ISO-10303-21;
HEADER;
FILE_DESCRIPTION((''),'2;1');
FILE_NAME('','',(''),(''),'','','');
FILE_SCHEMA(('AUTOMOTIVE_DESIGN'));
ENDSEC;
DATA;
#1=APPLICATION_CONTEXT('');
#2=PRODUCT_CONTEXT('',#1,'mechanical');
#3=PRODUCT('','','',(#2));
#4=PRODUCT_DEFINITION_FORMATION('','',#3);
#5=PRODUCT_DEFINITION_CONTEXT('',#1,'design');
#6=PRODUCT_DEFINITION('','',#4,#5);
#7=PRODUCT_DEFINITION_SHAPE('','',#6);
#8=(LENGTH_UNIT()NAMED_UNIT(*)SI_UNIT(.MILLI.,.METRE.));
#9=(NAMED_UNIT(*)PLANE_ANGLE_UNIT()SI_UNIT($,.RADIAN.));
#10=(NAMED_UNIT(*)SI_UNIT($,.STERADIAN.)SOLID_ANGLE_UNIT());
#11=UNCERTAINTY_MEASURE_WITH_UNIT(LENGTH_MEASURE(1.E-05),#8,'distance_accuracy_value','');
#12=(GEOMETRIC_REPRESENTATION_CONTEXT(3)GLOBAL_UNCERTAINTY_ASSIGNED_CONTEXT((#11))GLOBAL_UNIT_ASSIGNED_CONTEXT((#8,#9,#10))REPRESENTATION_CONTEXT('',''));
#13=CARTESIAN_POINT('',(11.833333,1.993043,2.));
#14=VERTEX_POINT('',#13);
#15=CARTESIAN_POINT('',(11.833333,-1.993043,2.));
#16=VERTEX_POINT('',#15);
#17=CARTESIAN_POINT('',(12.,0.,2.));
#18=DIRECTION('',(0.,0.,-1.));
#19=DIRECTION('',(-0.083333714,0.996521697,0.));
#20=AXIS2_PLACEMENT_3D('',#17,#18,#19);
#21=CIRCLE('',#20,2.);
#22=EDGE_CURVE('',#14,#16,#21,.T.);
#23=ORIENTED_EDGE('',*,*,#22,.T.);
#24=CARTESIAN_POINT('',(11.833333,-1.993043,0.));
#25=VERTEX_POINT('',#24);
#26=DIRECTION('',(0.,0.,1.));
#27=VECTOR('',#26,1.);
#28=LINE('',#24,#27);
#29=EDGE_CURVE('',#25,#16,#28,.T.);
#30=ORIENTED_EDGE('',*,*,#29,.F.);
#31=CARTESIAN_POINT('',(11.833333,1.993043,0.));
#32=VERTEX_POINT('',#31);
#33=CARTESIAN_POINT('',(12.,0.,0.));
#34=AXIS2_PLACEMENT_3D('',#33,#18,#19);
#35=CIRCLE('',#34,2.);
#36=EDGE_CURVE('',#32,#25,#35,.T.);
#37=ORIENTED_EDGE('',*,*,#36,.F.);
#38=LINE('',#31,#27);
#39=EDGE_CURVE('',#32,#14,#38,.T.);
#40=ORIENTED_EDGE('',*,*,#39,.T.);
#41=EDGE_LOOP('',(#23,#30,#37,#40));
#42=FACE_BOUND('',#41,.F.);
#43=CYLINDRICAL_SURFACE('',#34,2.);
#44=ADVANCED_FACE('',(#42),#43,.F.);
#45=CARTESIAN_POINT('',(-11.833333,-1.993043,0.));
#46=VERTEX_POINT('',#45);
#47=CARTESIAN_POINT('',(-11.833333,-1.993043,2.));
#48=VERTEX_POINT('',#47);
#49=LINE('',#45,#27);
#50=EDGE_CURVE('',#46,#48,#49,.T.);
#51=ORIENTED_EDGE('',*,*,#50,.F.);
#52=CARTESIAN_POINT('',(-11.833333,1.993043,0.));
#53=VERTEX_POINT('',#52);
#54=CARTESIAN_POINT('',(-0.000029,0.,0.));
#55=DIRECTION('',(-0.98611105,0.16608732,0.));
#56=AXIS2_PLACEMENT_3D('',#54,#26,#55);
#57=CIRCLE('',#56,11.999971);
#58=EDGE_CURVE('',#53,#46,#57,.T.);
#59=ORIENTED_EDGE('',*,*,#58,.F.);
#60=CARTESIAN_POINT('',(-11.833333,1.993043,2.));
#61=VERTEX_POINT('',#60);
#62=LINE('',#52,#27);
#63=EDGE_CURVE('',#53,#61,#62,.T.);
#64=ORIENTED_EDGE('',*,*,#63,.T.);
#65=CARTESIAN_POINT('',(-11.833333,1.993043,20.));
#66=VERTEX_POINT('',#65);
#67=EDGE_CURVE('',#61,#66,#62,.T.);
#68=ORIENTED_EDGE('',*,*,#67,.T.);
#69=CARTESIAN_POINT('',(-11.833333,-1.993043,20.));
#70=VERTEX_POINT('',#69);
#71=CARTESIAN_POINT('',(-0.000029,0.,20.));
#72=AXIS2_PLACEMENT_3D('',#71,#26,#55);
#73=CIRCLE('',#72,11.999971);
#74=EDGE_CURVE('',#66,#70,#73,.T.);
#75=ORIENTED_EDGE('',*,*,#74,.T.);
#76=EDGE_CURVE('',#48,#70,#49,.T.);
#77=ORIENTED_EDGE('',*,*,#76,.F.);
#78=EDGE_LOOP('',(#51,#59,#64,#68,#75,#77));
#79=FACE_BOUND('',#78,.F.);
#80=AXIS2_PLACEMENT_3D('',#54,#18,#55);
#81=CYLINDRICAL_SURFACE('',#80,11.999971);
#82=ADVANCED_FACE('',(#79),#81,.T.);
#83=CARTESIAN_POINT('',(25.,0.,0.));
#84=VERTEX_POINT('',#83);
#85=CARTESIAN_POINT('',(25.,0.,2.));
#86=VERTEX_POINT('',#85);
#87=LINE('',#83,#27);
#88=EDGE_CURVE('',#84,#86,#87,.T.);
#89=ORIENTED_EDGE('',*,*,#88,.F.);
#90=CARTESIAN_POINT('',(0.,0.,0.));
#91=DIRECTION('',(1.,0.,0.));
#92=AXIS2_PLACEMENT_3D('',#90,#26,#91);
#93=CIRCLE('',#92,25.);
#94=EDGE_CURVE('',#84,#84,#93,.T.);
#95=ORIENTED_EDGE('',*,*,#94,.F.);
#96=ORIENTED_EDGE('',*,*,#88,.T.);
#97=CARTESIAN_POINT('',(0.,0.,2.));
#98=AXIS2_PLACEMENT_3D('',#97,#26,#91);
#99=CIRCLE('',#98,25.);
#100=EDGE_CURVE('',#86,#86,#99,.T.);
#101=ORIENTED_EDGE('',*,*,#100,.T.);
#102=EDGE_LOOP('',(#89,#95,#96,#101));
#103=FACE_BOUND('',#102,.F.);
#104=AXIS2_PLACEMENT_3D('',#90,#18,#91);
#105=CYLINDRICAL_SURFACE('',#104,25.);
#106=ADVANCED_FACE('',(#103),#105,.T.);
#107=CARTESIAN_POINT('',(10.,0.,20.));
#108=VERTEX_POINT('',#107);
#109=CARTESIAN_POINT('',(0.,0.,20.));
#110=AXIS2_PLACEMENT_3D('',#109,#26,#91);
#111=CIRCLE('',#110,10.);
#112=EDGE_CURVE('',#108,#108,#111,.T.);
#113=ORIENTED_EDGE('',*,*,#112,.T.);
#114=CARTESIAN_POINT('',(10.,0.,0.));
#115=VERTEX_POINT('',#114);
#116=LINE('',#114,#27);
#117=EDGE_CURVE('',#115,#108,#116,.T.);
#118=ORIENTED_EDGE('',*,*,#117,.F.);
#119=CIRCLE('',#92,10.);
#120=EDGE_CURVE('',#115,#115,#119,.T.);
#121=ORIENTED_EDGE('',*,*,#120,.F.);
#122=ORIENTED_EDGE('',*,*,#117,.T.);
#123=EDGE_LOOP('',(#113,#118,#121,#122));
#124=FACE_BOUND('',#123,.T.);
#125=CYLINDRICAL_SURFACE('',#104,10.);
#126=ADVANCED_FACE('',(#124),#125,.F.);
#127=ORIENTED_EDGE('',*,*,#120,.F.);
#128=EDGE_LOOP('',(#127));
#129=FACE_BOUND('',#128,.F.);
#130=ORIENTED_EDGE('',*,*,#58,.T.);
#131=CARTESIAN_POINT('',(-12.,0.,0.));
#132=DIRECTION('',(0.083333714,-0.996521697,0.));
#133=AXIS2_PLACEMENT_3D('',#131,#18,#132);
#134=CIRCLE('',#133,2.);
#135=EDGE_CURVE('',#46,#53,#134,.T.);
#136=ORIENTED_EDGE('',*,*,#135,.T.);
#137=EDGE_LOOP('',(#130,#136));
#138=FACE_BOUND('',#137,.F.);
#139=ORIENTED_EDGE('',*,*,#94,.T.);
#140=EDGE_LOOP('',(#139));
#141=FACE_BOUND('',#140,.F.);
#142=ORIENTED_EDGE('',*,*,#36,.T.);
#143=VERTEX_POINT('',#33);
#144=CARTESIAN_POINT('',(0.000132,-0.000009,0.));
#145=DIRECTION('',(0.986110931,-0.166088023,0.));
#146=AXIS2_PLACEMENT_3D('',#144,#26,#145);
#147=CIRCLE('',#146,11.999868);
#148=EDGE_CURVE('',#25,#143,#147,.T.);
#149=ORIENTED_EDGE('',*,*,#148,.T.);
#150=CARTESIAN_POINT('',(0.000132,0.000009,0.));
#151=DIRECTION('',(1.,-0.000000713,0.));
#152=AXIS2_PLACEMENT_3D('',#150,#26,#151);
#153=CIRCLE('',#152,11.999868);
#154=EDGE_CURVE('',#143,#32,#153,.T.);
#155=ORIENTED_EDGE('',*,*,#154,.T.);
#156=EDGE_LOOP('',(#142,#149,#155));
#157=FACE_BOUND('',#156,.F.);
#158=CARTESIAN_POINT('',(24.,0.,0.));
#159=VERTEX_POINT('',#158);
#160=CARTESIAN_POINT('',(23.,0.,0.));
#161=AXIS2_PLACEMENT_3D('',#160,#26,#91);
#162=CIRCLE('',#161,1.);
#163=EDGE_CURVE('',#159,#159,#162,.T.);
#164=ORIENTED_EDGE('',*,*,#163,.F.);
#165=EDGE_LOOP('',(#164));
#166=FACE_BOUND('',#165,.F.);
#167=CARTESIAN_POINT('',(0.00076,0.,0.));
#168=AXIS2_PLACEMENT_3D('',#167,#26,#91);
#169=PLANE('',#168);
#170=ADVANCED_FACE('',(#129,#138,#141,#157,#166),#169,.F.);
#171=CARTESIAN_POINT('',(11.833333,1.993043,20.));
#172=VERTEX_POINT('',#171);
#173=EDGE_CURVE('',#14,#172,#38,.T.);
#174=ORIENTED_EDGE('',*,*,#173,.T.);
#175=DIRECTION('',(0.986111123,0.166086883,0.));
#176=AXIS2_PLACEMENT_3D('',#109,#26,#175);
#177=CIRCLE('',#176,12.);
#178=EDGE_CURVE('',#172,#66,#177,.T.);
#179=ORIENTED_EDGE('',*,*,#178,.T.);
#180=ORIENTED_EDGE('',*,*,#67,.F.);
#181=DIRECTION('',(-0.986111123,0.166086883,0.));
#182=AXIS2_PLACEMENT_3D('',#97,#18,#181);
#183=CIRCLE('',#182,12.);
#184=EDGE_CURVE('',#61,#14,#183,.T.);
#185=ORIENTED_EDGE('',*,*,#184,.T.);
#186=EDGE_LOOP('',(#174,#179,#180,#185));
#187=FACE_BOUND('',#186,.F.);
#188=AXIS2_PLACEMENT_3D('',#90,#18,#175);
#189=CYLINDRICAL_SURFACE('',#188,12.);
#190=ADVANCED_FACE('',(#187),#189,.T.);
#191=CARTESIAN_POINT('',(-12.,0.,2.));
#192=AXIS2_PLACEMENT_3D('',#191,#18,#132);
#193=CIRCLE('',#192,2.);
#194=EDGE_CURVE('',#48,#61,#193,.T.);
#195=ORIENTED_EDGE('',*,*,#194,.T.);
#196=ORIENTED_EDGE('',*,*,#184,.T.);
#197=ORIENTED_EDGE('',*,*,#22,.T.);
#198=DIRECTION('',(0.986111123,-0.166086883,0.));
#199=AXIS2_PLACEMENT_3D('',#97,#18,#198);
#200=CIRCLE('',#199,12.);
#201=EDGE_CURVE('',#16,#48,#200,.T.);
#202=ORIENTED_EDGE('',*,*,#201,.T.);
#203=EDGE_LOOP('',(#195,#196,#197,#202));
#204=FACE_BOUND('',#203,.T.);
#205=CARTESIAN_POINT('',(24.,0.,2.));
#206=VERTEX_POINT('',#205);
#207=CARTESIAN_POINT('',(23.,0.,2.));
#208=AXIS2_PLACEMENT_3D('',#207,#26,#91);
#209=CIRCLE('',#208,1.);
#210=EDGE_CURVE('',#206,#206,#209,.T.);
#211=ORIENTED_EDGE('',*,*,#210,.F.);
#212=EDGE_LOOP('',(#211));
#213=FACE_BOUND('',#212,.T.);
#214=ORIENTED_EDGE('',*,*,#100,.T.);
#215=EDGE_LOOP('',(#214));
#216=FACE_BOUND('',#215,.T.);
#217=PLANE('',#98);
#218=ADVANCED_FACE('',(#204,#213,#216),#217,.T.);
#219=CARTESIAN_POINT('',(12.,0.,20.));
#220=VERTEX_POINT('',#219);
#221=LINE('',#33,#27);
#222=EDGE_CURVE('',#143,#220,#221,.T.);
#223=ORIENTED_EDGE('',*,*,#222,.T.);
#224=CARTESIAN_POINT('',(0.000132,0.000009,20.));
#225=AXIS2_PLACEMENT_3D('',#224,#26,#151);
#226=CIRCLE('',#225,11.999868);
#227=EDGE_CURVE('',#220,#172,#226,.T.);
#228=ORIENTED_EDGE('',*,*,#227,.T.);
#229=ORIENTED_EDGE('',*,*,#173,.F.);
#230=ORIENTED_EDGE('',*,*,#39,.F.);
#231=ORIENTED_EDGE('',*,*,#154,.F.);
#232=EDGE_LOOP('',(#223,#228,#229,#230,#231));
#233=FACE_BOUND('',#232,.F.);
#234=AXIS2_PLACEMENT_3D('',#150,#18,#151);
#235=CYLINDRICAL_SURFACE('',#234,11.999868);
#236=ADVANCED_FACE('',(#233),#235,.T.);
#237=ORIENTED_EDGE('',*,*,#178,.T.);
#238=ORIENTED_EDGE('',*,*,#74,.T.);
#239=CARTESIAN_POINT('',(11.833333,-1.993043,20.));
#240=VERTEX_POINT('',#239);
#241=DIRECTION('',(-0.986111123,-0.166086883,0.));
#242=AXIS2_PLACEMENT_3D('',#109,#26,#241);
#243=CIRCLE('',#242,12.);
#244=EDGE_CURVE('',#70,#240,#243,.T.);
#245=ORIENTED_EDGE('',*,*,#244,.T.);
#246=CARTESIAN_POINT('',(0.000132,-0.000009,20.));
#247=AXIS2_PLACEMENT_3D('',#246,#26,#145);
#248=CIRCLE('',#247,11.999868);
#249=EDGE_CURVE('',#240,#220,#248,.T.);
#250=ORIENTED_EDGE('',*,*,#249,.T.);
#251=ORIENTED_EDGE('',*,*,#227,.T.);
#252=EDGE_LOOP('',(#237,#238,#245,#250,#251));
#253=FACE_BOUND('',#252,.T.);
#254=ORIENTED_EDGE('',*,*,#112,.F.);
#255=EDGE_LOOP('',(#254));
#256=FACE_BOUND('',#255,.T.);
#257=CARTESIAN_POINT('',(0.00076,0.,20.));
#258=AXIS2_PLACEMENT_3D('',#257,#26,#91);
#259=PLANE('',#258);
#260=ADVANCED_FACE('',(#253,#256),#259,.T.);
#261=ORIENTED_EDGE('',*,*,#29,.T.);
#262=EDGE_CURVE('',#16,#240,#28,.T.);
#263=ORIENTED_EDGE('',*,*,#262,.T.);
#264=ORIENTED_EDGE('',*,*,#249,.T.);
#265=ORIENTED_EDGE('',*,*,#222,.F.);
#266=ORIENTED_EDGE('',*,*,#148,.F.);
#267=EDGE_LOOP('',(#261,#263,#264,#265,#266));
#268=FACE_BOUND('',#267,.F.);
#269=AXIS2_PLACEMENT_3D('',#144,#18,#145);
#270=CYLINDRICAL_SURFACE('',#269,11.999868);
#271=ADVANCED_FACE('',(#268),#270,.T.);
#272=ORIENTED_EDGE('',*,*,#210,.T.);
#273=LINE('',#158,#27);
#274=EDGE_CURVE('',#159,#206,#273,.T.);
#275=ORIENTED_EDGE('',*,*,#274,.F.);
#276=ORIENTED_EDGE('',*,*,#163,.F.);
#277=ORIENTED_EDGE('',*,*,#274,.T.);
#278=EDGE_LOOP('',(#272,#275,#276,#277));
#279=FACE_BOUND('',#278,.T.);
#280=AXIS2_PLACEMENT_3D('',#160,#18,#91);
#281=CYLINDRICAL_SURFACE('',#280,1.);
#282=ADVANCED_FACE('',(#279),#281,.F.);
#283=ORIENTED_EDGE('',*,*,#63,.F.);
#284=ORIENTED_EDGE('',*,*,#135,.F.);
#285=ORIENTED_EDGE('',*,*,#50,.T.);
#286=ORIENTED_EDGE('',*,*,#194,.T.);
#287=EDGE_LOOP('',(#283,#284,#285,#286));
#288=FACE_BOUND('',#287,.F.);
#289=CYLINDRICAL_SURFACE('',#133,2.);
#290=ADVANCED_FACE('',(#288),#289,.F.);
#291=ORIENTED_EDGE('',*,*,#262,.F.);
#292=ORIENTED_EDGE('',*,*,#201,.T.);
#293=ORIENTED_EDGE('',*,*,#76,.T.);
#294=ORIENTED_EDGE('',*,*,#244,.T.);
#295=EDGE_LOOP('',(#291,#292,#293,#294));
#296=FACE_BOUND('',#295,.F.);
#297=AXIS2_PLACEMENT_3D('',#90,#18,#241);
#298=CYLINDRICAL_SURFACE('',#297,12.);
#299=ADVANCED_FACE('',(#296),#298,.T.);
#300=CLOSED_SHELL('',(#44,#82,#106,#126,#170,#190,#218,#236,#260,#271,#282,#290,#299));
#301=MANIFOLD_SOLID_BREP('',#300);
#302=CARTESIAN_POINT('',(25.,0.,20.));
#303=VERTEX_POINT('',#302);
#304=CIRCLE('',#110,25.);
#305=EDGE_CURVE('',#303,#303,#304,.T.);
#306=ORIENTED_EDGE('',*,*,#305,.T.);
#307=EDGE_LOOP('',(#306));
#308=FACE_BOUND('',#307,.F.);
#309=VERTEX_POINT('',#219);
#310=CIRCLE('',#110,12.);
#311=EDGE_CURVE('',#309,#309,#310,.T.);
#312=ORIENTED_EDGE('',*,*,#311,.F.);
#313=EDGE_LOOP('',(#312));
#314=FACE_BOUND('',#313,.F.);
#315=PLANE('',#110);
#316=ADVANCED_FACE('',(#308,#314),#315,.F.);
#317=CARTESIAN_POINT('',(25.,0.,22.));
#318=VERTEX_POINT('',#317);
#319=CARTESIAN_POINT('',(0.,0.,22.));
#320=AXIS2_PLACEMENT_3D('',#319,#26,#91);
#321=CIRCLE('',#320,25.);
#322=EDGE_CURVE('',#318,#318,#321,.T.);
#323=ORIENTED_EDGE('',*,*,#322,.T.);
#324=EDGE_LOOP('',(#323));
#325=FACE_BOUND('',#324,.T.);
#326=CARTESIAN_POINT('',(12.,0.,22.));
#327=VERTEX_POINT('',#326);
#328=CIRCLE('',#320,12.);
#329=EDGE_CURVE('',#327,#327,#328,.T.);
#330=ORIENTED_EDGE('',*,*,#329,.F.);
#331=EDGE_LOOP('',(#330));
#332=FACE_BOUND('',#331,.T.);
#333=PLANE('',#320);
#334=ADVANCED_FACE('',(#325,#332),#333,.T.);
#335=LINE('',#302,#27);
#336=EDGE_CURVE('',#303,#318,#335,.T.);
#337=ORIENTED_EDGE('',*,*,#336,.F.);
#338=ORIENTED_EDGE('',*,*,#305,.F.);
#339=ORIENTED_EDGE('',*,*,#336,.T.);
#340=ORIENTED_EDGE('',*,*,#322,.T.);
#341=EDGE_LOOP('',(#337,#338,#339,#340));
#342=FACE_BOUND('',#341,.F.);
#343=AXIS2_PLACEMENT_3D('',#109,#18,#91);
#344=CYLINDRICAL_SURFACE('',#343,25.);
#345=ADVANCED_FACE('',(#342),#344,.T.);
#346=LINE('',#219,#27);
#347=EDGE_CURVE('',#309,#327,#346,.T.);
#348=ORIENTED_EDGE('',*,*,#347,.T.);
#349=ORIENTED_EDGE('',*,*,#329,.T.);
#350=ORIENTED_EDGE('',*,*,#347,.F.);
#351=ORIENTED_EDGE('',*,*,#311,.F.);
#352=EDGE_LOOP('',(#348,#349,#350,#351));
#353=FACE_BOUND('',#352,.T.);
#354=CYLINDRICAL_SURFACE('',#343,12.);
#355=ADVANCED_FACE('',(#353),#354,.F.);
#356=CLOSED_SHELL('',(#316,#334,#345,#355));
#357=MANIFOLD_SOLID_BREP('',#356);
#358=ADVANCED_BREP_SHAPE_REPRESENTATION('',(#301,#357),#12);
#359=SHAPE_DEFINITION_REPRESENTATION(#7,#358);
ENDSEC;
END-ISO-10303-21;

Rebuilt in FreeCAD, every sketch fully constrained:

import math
import FreeCAD as App
import Part
import Sketcher
from FreeCAD import Vector

doc = App.newDocument("Part")
body = doc.addObject("PartDesign::Body", "Body")

sketch1 = body.newObject("Sketcher::SketchObject", "Sketch")
sketch1.AttachmentSupport = (doc.getObject("XY_Plane"), [""])
sketch1.MapMode = "FlatFace"
sketch1.addGeometry([
    Part.Circle(Vector(0, 0, 0), Vector(0, 0, 1), 25),
    Part.ArcOfCircle(Part.Circle(Vector(-12, 0, 0), Vector(0, 0, 1), 2), math.radians(85), math.radians(275)),
    Part.ArcOfCircle(Part.Circle(Vector(0, 0, 0), Vector(0, 0, 1), 12), math.radians(10), math.radians(170)),
    Part.ArcOfCircle(Part.Circle(Vector(12, 0, 0), Vector(0, 0, 1), 2), math.radians(-95), math.radians(95)),
    Part.ArcOfCircle(Part.Circle(Vector(0, 0, 0), Vector(0, 0, 1), 12), math.radians(-170), math.radians(-10)),
    Part.Circle(Vector(23, 0, 0), Vector(0, 0, 1), 1),
], False)
sketch1.addConstraint([
    Sketcher.Constraint("Coincident", 1, 1, 2, 2),
    Sketcher.Constraint("Coincident", 2, 1, 3, 2),
    Sketcher.Constraint("Coincident", 3, 1, 4, 2),
    Sketcher.Constraint("Coincident", 4, 1, 1, 2),
    Sketcher.Constraint("Coincident", 0, 3, -1, 1),
    Sketcher.Constraint("Coincident", 2, 3, -1, 1),
    Sketcher.Constraint("Coincident", 4, 3, -1, 1),
    Sketcher.Constraint("Equal", 1, 3),
    Sketcher.Constraint("Equal", 2, 4),
    Sketcher.Constraint("Symmetric", 1, 3, 3, 3, -1, 1),
    Sketcher.Constraint("PointOnObject", 1, 3, -1),
    Sketcher.Constraint("PointOnObject", 5, 3, -1),
    Sketcher.Constraint("Diameter", 0, 50.0),
    Sketcher.Constraint("Diameter", 5, 2.0),
    Sketcher.Constraint("Radius", 1, 2.0),
    Sketcher.Constraint("Radius", 2, 12.0),
    Sketcher.Constraint("DistanceX", 1, 3, -1, 1, 12.0),
    Sketcher.Constraint("DistanceX", -1, 1, 5, 3, 23.0),
])
pad1 = body.newObject("PartDesign::Pad", "Pad")
pad1.Profile = sketch1
pad1.Length = 2

sketch2 = body.newObject("Sketcher::SketchObject", "Sketch001")
sketch2.AttachmentSupport = (doc.getObject("XY_Plane"), [""])
sketch2.MapMode = "FlatFace"
sketch2.addGeometry([
    Part.ArcOfCircle(Part.Circle(Vector(0.000132, -0.000009, 0), Vector(0, 0, 1), 11.999868), math.radians(-9.560446), math.radians(0.000041)),
    Part.ArcOfCircle(Part.Circle(Vector(0.000132, 0.000009, 0), Vector(0, 0, 1), 11.999868), math.radians(-0.000041), math.radians(9.560446)),
    Part.ArcOfCircle(Part.Circle(Vector(0, 0, 0), Vector(0, 0, 1), 12), math.radians(9.56038), math.radians(170.43962)),
    Part.ArcOfCircle(Part.Circle(Vector(-0.000029, 0, 0), Vector(0, 0, 1), 11.999971), math.radians(170.439595), math.radians(189.560405)),
    Part.ArcOfCircle(Part.Circle(Vector(0, 0, 0), Vector(0, 0, 1), 12), math.radians(-170.43962), math.radians(-9.56038)),
    Part.Circle(Vector(0, 0, 0), Vector(0, 0, 1), 10),
], False)
sketch2.addConstraint([
    Sketcher.Constraint("Coincident", 0, 2, 1, 1),
    Sketcher.Constraint("Coincident", 1, 2, 2, 1),
    Sketcher.Constraint("Coincident", 2, 2, 3, 1),
    Sketcher.Constraint("Coincident", 3, 2, 4, 1),
    Sketcher.Constraint("Coincident", 4, 2, 0, 1),
    Sketcher.Constraint("Coincident", 2, 3, -1, 1),
    Sketcher.Constraint("Coincident", 4, 3, -1, 1),
    Sketcher.Constraint("Coincident", 5, 3, -1, 1),
    Sketcher.Constraint("PointOnObject", 3, 3, -1),
    Sketcher.Constraint("PointOnObject", 0, 2, -1),
    Sketcher.Constraint("Diameter", 5, 20.0),
    Sketcher.Constraint("Radius", 2, 12.0),
    Sketcher.Constraint("DistanceX", -1, 1, 0, 2, 12.0),
    Sketcher.Constraint("Radius", 0, 11.999868),
    Sketcher.Constraint("Radius", 1, 11.999868),
    Sketcher.Constraint("Radius", 3, 11.999971),
    Sketcher.Constraint("DistanceX", 1, 3, 1, 2, 11.833201),
    Sketcher.Constraint("DistanceX", 0, 3, 4, 2, 11.833201),
    Sketcher.Constraint("DistanceX", 2, 2, -1, 1, 11.833333),
    Sketcher.Constraint("DistanceX", 3, 2, -1, 1, 11.833333),
])
pad2 = body.newObject("PartDesign::Pad", "Pad001")
pad2.Profile = sketch2
pad2.Length = 20
body2 = doc.addObject("PartDesign::Body", "Body001")

sketch3 = body2.newObject("Sketcher::SketchObject", "Sketch002")
sketch3.AttachmentSupport = (doc.getObject("XY_Plane001"), [""])
sketch3.MapMode = "FlatFace"
sketch3.AttachmentOffset = App.Placement(Vector(0, 0, 20), App.Rotation())
sketch3.addGeometry([
    Part.Circle(Vector(0, 0, 0), Vector(0, 0, 1), 25),
    Part.Circle(Vector(0, 0, 0), Vector(0, 0, 1), 12),
], False)
sketch3.addConstraint([
    Sketcher.Constraint("Coincident", 0, 3, -1, 1),
    Sketcher.Constraint("Coincident", 1, 3, -1, 1),
    Sketcher.Constraint("Diameter", 0, 50.0),
    Sketcher.Constraint("Diameter", 1, 24.0),
])
pad3 = body2.newObject("PartDesign::Pad", "Pad002")
pad3.Profile = sketch3
pad3.Length = 2

doc.recompute()
